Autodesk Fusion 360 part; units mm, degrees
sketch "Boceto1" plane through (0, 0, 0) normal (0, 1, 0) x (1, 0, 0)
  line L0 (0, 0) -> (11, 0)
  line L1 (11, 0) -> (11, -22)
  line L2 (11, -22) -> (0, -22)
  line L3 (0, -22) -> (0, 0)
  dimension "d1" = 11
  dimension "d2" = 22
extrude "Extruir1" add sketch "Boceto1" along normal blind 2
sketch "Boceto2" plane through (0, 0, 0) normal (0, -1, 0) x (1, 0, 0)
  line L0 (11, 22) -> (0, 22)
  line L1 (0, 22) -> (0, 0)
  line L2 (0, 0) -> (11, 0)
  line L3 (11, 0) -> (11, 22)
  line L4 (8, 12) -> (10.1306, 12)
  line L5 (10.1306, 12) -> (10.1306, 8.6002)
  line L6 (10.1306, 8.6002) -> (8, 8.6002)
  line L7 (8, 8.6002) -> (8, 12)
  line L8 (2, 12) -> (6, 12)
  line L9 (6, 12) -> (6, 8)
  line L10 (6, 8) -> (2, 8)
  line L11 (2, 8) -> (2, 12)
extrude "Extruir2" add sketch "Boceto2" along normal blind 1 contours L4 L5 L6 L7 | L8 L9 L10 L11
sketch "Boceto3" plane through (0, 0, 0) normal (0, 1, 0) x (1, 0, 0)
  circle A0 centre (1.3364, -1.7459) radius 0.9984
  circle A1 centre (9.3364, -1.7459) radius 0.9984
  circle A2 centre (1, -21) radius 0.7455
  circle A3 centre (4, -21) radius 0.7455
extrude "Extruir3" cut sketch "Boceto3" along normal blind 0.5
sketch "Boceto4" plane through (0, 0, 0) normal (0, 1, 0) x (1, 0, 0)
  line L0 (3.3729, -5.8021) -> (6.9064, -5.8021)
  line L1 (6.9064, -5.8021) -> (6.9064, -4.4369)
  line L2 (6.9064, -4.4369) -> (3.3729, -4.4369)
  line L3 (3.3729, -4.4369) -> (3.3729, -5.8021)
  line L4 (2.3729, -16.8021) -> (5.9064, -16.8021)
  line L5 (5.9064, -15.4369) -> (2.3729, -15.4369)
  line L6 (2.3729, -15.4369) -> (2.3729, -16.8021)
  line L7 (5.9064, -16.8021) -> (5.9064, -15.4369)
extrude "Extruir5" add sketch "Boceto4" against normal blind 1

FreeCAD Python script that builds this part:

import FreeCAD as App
import Part
import Sketcher
Q = App.Units.Quantity

doc = App.newDocument("Part")
params = doc.addObject("Spreadsheet::Sheet", "Params")
for row, (alias, value) in enumerate([
    ("sketch1_width", "11 mm"),
    ("sketch1_height", "22 mm"),
    ("pad1_length", "2 mm"),
    ("sketch2_width", "4 mm"),
    ("pad2_length", "1 mm"),
    ("pocket1_length", "0.5 mm"),
    ("pad3_length", "1 mm"),
], start=1):
    params.set(f"A{row}", alias)
    params.set(f"B{row}", "=" + value)
    params.setAlias(f"B{row}", alias)

body = doc.addObject("PartDesign::Body", "Body")

sketch1 = doc.addObject("Sketcher::SketchObject", "Sketch")
body.addObject(sketch1)
sketch1.AttachmentSupport = (doc.XZ_Plane, [""])
sketch1.MapMode = "FlatFace"
sketch1.addGeometry([
    Part.LineSegment(App.Vector(11, 0, 0), App.Vector(0, 0, 0)),
    Part.LineSegment(App.Vector(0, 0, 0), App.Vector(0, 22, 0)),
    Part.LineSegment(App.Vector(0, 22, 0), App.Vector(11, 22, 0)),
    Part.LineSegment(App.Vector(11, 22, 0), App.Vector(11, 0, 0)),
], False)
sketch1.addConstraint([
    Sketcher.Constraint("Coincident", 0, 2, 1, 1),
    Sketcher.Constraint("Coincident", 1, 2, 2, 1),
    Sketcher.Constraint("Coincident", 2, 2, 3, 1),
    Sketcher.Constraint("Coincident", 3, 2, 0, 1),
    Sketcher.Constraint("Horizontal", 0),
    Sketcher.Constraint("Vertical", 1),
    Sketcher.Constraint("Horizontal", 2),
    Sketcher.Constraint("Vertical", 3),
    Sketcher.Constraint("Coincident", 0, 2, -1, 1),
    Sketcher.Constraint("DistanceX", 0, 2, 0, 1, Q("11 mm")),
    Sketcher.Constraint("DistanceY", 1, 1, 1, 2, Q("22 mm")),
])
sketch1.setExpression("Constraints[9]", "Params.sketch1_width")
sketch1.setExpression("Constraints[10]", "Params.sketch1_height")
pad1 = doc.addObject("PartDesign::Pad", "Pad")
body.addObject(pad1)
pad1.Profile = sketch1
pad1.setExpression("Length", "Params.pad1_length")
pad1.Reversed = True

sketch2 = doc.addObject("Sketcher::SketchObject", "Sketch001")
body.addObject(sketch2)
sketch2.AttachmentSupport = (doc.XZ_Plane, [""])
sketch2.MapMode = "FlatFace"
sketch2.addGeometry([
    Part.LineSegment(App.Vector(10.1, 12, 0), App.Vector(8, 12, 0)),
    Part.LineSegment(App.Vector(8, 12, 0), App.Vector(8, 8.6, 0)),
    Part.LineSegment(App.Vector(8, 8.6, 0), App.Vector(10.1, 8.6, 0)),
    Part.LineSegment(App.Vector(10.1, 8.6, 0), App.Vector(10.1, 12, 0)),
    Part.LineSegment(App.Vector(6, 12, 0), App.Vector(2, 12, 0)),
    Part.LineSegment(App.Vector(2, 12, 0), App.Vector(2, 8, 0)),
    Part.LineSegment(App.Vector(2, 8, 0), App.Vector(6, 8, 0)),
    Part.LineSegment(App.Vector(6, 8, 0), App.Vector(6, 12, 0)),
], False)
sketch2.addConstraint([
    Sketcher.Constraint("Coincident", 0, 2, 1, 1),
    Sketcher.Constraint("Coincident", 1, 2, 2, 1),
    Sketcher.Constraint("Coincident", 2, 2, 3, 1),
    Sketcher.Constraint("Coincident", 3, 2, 0, 1),
    Sketcher.Constraint("Coincident", 4, 2, 5, 1),
    Sketcher.Constraint("Coincident", 5, 2, 6, 1),
    Sketcher.Constraint("Coincident", 6, 2, 7, 1),
    Sketcher.Constraint("Coincident", 7, 2, 4, 1),
    Sketcher.Constraint("Horizontal", 0),
    Sketcher.Constraint("Vertical", 1),
    Sketcher.Constraint("Horizontal", 2),
    Sketcher.Constraint("Vertical", 3),
    Sketcher.Constraint("Horizontal", 4),
    Sketcher.Constraint("Vertical", 5),
    Sketcher.Constraint("Horizontal", 6),
    Sketcher.Constraint("Vertical", 7),
    Sketcher.Constraint("Horizontal", 3, 2, 4, 2),
    Sketcher.Constraint("Equal", 6, 5),
    Sketcher.Constraint("DistanceX", 4, 2, 4, 1, Q("4 mm")),
    Sketcher.Constraint("DistanceX", -1, 1, 0, 2, Q("8 mm")),
    Sketcher.Constraint("DistanceY", -1, 1, 0, 2, Q("12 mm")),
    Sketcher.Constraint("DistanceX", -1, 1, 4, 2, Q("2 mm")),
    Sketcher.Constraint("DistanceX", 0, 2, 0, 1, Q("2.1306 mm")),
    Sketcher.Constraint("DistanceY", 1, 2, 1, 1, Q("3.3998 mm")),
])
sketch2.setExpression("Constraints[18]", "Params.sketch2_width")
pad2 = doc.addObject("PartDesign::Pad", "Pad001")
body.addObject(pad2)
pad2.Profile = sketch2
pad2.setExpression("Length", "Params.pad2_length")

sketch3 = doc.addObject("Sketcher::SketchObject", "Sketch002")
body.addObject(sketch3)
sketch3.AttachmentSupport = (doc.XZ_Plane, [""])
sketch3.MapMode = "FlatFace"
sketch3.addGeometry([
    Part.Circle(App.Vector(1.3, 1.7, 0), App.Vector(0, 0, 1), 1),
    Part.Circle(App.Vector(9.3, 1.7, 0), App.Vector(0, 0, 1), 1),
    Part.Circle(App.Vector(1, 21, 0), App.Vector(0, 0, 1), 0.7),
    Part.Circle(App.Vector(4, 21, 0), App.Vector(0, 0, 1), 0.7),
], False)
sketch3.addConstraint([
    Sketcher.Constraint("Equal", 0, 1),
    Sketcher.Constraint("Equal", 2, 3),
    Sketcher.Constraint("Horizontal", 0, 3, 1, 3),
    Sketcher.Constraint("Horizontal", 2, 3, 3, 3),
    Sketcher.Constraint("Diameter", 2, Q("1.491 mm")),
    Sketcher.Constraint("DistanceX", -1, 1, 2, 3, Q("1 mm")),
    Sketcher.Constraint("DistanceY", -1, 1, 2, 3, Q("21 mm")),
    Sketcher.Constraint("DistanceX", -1, 1, 3, 3, Q("4 mm")),
    Sketcher.Constraint("DistanceX", 0, 3, 1, 3, Q("8 mm")),
    Sketcher.Constraint("Diameter", 0, Q("1.9968 mm")),
    Sketcher.Constraint("DistanceY", -1, 1, 0, 3, Q("1.746 mm")),
    Sketcher.Constraint("DistanceX", -1, 1, 0, 3, Q("1.3364 mm")),
])
pocket1 = doc.addObject("PartDesign::Pocket", "Pocket")
body.addObject(pocket1)
pocket1.Profile = sketch3
pocket1.setExpression("Length", "Params.pocket1_length")

sketch4 = doc.addObject("Sketcher::SketchObject", "Sketch003")
body.addObject(sketch4)
sketch4.AttachmentSupport = (doc.XZ_Plane, [""])
sketch4.MapMode = "FlatFace"
sketch4.addGeometry([
    Part.LineSegment(App.Vector(3.4, 4.4, 0), App.Vector(3.4, 5.8, 0)),
    Part.LineSegment(App.Vector(3.4, 5.8, 0), App.Vector(6.9, 5.8, 0)),
    Part.LineSegment(App.Vector(6.9, 5.8, 0), App.Vector(6.9, 4.4, 0)),
    Part.LineSegment(App.Vector(6.9, 4.4, 0), App.Vector(3.4, 4.4, 0)),
    Part.LineSegment(App.Vector(2.4, 15.4, 0), App.Vector(2.4, 16.8, 0)),
    Part.LineSegment(App.Vector(2.4, 16.8, 0), App.Vector(5.9, 16.8, 0)),
    Part.LineSegment(App.Vector(5.9, 16.8, 0), App.Vector(5.9, 15.4, 0)),
    Part.LineSegment(App.Vector(5.9, 15.4, 0), App.Vector(2.4, 15.4, 0)),
], False)
sketch4.addConstraint([
    Sketcher.Constraint("Coincident", 0, 2, 1, 1),
    Sketcher.Constraint("Coincident", 1, 2, 2, 1),
    Sketcher.Constraint("Coincident", 2, 2, 3, 1),
    Sketcher.Constraint("Coincident", 3, 2, 0, 1),
    Sketcher.Constraint("Coincident", 4, 2, 5, 1),
    Sketcher.Constraint("Coincident", 5, 2, 6, 1),
    Sketcher.Constraint("Coincident", 6, 2, 7, 1),
    Sketcher.Constraint("Coincident", 7, 2, 4, 1),
    Sketcher.Constraint("Vertical", 0),
    Sketcher.Constraint("Horizontal", 1),
    Sketcher.Constraint("Vertical", 2),
    Sketcher.Constraint("Horizontal", 3),
    Sketcher.Constraint("Vertical", 4),
    Sketcher.Constraint("Horizontal", 5),
    Sketcher.Constraint("Vertical", 6),
    Sketcher.Constraint("Horizontal", 7),
    Sketcher.Constraint("Equal", 3, 5),
    Sketcher.Constraint("Equal", 2, 4),
    Sketcher.Constraint("DistanceX", 4, 2, 0, 2, Q("1 mm")),
    Sketcher.Constraint("DistanceY", 0, 2, 4, 2, Q("11 mm")),
    Sketcher.Constraint("DistanceX", 1, 1, 1, 2, Q("3.5335 mm")),
    Sketcher.Constraint("DistanceY", 0, 1, 0, 2, Q("1.3652 mm")),
    Sketcher.Constraint("DistanceX", -1, 1, 0, 2, Q("3.373 mm")),
    Sketcher.Constraint("DistanceY", -1, 1, 0, 2, Q("5.802 mm")),
])
pad3 = doc.addObject("PartDesign::Pad", "Pad002")
body.addObject(pad3)
pad3.Profile = sketch4
pad3.setExpression("Length", "Params.pad3_length")

doc.recompute()
